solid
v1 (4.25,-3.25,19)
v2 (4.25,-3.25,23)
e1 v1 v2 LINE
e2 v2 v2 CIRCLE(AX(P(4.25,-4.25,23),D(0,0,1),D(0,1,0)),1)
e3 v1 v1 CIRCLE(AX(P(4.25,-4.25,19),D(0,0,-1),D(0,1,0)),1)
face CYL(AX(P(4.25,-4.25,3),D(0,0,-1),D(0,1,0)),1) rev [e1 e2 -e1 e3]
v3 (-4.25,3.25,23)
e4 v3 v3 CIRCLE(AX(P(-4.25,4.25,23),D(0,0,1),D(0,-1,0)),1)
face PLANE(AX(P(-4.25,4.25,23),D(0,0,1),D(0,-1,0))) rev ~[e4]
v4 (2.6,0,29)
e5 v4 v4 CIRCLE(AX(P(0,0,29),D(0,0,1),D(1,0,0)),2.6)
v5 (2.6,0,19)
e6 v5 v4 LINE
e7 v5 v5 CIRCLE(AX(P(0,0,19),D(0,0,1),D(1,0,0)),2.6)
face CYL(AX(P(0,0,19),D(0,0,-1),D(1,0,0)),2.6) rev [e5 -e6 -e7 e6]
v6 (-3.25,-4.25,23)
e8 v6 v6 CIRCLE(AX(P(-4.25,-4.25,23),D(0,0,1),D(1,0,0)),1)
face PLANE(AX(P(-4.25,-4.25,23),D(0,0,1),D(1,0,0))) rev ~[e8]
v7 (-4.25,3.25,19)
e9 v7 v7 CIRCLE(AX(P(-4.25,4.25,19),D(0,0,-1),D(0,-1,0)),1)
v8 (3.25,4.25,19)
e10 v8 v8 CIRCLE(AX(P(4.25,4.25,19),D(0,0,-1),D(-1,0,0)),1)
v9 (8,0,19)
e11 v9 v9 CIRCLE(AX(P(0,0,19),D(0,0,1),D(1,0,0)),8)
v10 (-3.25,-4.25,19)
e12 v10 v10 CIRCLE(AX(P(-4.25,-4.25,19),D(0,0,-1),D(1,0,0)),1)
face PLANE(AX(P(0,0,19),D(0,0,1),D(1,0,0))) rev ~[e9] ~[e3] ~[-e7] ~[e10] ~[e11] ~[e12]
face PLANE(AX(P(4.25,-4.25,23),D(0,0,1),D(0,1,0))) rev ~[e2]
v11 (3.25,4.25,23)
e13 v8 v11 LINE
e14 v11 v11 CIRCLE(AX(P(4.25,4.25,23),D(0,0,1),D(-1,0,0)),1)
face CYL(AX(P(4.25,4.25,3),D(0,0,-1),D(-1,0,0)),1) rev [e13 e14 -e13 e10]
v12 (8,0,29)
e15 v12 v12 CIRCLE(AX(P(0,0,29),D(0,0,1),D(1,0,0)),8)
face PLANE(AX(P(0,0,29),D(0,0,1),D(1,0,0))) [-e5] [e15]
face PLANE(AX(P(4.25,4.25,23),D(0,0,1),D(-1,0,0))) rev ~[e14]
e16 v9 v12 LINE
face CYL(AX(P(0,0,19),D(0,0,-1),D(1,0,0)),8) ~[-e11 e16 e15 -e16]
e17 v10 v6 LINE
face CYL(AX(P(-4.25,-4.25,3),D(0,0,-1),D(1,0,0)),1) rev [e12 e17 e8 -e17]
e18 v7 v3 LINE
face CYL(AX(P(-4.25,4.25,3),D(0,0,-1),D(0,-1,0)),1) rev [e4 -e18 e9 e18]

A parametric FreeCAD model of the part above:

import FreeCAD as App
import Part
import Sketcher

V = App.Vector

doc = App.newDocument("Part")
body = doc.addObject("PartDesign::Body", "Body")

# Sketch on XY plane
sketch1 = body.newObject("Sketcher::SketchObject", "Sketch")
sketch1.AttachmentSupport = (doc.getObject("XY_Plane"), [""])
sketch1.MapMode = "FlatFace"
sketch1.AttachmentOffset = App.Placement(V(0, 0, -88), App.Rotation())
sketch1.addGeometry(Part.Circle(V(4.25, -4.25, 0), V(0, 0, 1), 1), False)
sketch1.addConstraint([
    Sketcher.Constraint("Diameter", 0, 2.0),
    Sketcher.Constraint("DistanceX", -1, 1, 0, 3, 4.25),
    Sketcher.Constraint("DistanceY", 0, 3, -1, 1, 4.25),
])
pad1 = body.newObject("PartDesign::Pad", "Pad")
pad1.Profile = sketch1
pad1.Length = 20
body2 = doc.addObject("PartDesign::Body", "Body001")

# Sketch on XY plane
sketch2 = body2.newObject("Sketcher::SketchObject", "Sketch001")
sketch2.AttachmentSupport = (doc.getObject("XY_Plane001"), [""])
sketch2.MapMode = "FlatFace"
sketch2.AttachmentOffset = App.Placement(V(0, 0, -88), App.Rotation())
sketch2.addGeometry(Part.Circle(V(4.25, 4.25, 0), V(0, 0, 1), 1), False)
sketch2.addConstraint([
    Sketcher.Constraint("Diameter", 0, 2.0),
    Sketcher.Constraint("DistanceX", -1, 1, 0, 3, 4.25),
    Sketcher.Constraint("DistanceY", -1, 1, 0, 3, 4.25),
])
pad2 = body2.newObject("PartDesign::Pad", "Pad001")
pad2.Profile = sketch2
pad2.Length = 20
body3 = doc.addObject("PartDesign::Body", "Body002")

# Sketch on XY plane
sketch3 = body3.newObject("Sketcher::SketchObject", "Sketch002")
sketch3.AttachmentSupport = (doc.getObject("XY_Plane002"), [""])
sketch3.MapMode = "FlatFace"
sketch3.AttachmentOffset = App.Placement(V(0, 0, -88), App.Rotation())
sketch3.addGeometry(Part.Circle(V(-4.25, 4.25, 0), V(0, 0, 1), 1), False)
sketch3.addConstraint([
    Sketcher.Constraint("Diameter", 0, 2.0),
    Sketcher.Constraint("DistanceX", 0, 3, -1, 1, 4.25),
    Sketcher.Constraint("DistanceY", -1, 1, 0, 3, 4.25),
])
pad3 = body3.newObject("PartDesign::Pad", "Pad002")
pad3.Profile = sketch3
pad3.Length = 20
body4 = doc.addObject("PartDesign::Body", "Body003")
body4.AllowCompound = True

# Sketch on XY plane
sketch4 = body4.newObject("Sketcher::SketchObject", "Sketch003")
sketch4.AttachmentSupport = (doc.getObject("XY_Plane003"), [""])
sketch4.MapMode = "FlatFace"
sketch4.AttachmentOffset = App.Placement(V(0, 0, -88), App.Rotation())
sketch4.addGeometry(Part.Circle(V(-4.25, -4.25, 0), V(0, 0, 1), 1), False)
sketch4.addConstraint([
    Sketcher.Constraint("Diameter", 0, 2.0),
    Sketcher.Constraint("DistanceX", 0, 3, -1, 1, 4.25),
    Sketcher.Constraint("DistanceY", 0, 3, -1, 1, 4.25),
])
pad4 = body4.newObject("PartDesign::Pad", "Pad003")
pad4.Profile = sketch4
pad4.Length = 20
doc.recompute()

boolean = body4.newObject("PartDesign::Boolean", "Boolean")
boolean.Type = "Fuse"
boolean.addObjects([body])
doc.recompute()

boolean2 = body4.newObject("PartDesign::Boolean", "Boolean001")
boolean2.Type = "Fuse"
boolean2.addObjects([body2])
doc.recompute()

boolean3 = body4.newObject("PartDesign::Boolean", "Boolean002")
boolean3.Type = "Fuse"
boolean3.addObjects([body3])
body5 = doc.addObject("PartDesign::Body", "Body004")
body5.AllowCompound = True
doc.recompute()

body4.Placement = App.Placement(V(0, 0, 91), App.Rotation(V(0, 0, 1), 0))
boolean4 = body5.newObject("PartDesign::Boolean", "Boolean003")
boolean4.Type = "Fuse"
boolean4.addObjects([body4])
body6 = doc.addObject("PartDesign::Body", "Body005")

# Sketch on XY plane
sketch5 = body6.newObject("Sketcher::SketchObject", "Sketch004")
sketch5.AttachmentSupport = (doc.getObject("XY_Plane005"), [""])
sketch5.MapMode = "FlatFace"
sketch5.AttachmentOffset = App.Placement(V(0, 0, 19), App.Rotation())
sketch5.addGeometry([
    Part.Circle(V(0, 0, 0), V(0, 0, 1), 8),
    Part.Circle(V(0, 0, 0), V(0, 0, 1), 2.6),
], False)
sketch5.addConstraint([
    Sketcher.Constraint("Coincident", 0, 3, -1, 1),
    Sketcher.Constraint("Coincident", 1, 3, -1, 1),
    Sketcher.Constraint("Diameter", 0, 16.0),
    Sketcher.Constraint("Diameter", 1, 5.2),
])
pad5 = body6.newObject("PartDesign::Pad", "Pad004")
pad5.Profile = sketch5
pad5.Length = 10
doc.recompute()

boolean5 = body6.newObject("PartDesign::Boolean", "Boolean004")
boolean5.Type = "Cut"
boolean5.addObjects([body5])

doc.recompute()
